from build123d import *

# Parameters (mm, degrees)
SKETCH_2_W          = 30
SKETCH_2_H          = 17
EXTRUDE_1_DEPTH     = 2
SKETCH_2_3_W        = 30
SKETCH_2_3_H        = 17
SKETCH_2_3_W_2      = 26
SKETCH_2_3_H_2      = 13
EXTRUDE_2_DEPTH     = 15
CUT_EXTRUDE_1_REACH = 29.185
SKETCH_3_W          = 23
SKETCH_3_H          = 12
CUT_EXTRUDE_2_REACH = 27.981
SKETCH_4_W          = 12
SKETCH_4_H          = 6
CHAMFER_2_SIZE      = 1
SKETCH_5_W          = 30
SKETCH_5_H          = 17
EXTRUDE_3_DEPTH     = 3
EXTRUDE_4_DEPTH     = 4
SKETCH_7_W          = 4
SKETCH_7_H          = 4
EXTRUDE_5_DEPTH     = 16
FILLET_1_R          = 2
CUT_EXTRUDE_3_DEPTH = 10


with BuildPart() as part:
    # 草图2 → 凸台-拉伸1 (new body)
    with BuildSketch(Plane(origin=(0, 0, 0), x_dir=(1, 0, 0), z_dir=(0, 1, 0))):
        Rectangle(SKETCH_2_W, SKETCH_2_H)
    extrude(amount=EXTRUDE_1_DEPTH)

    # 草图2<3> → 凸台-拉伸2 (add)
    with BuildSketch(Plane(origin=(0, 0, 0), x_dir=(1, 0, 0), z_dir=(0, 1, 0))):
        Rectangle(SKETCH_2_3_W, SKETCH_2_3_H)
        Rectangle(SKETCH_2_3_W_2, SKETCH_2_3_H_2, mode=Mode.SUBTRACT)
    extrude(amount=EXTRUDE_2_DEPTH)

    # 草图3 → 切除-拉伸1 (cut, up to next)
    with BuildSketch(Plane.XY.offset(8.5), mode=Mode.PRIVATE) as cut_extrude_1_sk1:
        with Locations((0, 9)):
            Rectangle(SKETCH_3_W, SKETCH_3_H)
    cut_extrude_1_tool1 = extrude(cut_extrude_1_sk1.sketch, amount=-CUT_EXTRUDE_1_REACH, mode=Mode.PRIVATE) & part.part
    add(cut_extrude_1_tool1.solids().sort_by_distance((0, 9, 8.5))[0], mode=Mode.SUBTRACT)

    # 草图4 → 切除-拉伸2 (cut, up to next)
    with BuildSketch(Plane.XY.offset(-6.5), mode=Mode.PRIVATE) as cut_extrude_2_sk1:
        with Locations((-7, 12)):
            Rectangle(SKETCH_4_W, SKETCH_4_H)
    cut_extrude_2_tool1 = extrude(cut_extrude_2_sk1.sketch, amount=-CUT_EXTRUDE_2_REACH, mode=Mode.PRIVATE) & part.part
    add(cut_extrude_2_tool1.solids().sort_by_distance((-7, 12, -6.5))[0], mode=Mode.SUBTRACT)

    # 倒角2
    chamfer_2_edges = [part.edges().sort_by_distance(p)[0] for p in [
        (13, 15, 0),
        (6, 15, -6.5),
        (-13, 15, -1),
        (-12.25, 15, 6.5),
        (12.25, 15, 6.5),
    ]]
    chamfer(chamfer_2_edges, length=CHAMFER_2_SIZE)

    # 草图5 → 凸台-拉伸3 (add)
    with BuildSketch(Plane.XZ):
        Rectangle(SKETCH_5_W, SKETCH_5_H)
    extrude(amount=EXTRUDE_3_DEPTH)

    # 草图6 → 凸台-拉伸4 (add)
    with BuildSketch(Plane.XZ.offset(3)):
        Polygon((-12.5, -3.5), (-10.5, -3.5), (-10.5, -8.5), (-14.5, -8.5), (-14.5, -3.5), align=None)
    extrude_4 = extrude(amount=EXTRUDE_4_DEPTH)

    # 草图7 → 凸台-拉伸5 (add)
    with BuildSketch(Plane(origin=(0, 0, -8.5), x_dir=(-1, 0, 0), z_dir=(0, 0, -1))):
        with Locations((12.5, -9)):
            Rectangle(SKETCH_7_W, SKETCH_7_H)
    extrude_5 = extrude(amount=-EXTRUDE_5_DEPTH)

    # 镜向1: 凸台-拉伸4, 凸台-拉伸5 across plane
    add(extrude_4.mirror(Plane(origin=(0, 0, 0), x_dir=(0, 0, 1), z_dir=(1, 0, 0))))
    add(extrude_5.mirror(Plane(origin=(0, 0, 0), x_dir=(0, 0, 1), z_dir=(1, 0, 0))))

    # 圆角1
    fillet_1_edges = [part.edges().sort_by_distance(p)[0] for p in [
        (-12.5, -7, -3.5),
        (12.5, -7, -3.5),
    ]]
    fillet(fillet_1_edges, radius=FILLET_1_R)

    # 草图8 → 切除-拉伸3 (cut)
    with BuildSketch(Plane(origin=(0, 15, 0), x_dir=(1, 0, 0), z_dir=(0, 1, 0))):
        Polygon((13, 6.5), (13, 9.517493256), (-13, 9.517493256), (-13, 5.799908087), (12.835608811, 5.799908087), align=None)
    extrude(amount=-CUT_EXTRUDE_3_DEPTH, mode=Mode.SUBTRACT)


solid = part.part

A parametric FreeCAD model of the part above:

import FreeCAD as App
import Part
import Sketcher

V = App.Vector


def edges_at(feature, points):
    """Names of the edges that pass closest to the given points."""
    edges = feature.Shape.Edges
    near = lambda p: min(range(len(edges)), key=lambda i: edges[i].distToShape(Part.Vertex(*p))[0])
    return sorted({f"Edge{near(p) + 1}" for p in points})

doc = App.newDocument("Part")
body = doc.addObject("PartDesign::Body", "Body")

# Sketch on XZ plane
sketch1 = body.newObject("Sketcher::SketchObject", "Sketch")
sketch1.AttachmentSupport = (doc.getObject("XZ_Plane"), [""])
sketch1.MapMode = "FlatFace"
sketch1.addGeometry([
    Part.LineSegment(V(-15, -8, 0), V(-15, 8, 0)),
    Part.LineSegment(V(-15, 8, 0), V(15, 8, 0)),
    Part.LineSegment(V(15, 8, 0), V(15, -8, 0)),
    Part.LineSegment(V(15, -8, 0), V(-15, -8, 0)),
], False)
sketch1.addConstraint([
    Sketcher.Constraint("Coincident", 0, 2, 1, 1),
    Sketcher.Constraint("Coincident", 1, 2, 2, 1),
    Sketcher.Constraint("Coincident", 2, 2, 3, 1),
    Sketcher.Constraint("Coincident", 3, 2, 0, 1),
    Sketcher.Constraint("Vertical", 0),
    Sketcher.Constraint("Horizontal", 1),
    Sketcher.Constraint("Vertical", 2),
    Sketcher.Constraint("Horizontal", 3),
    Sketcher.Constraint("Symmetric", 0, 2, 2, 2, -1, 1),
    Sketcher.Constraint("DistanceX", 1, 1, 1, 2, 30.0),
    Sketcher.Constraint("DistanceY", 0, 1, 0, 2, 17.0),
])
pad1 = body.newObject("PartDesign::Pad", "Pad")
pad1.Profile = sketch1
pad1.Length = 2
pad1.Reversed = True

# Sketch on XZ plane
sketch2 = body.newObject("Sketcher::SketchObject", "Sketch001")
sketch2.AttachmentSupport = (doc.getObject("XZ_Plane"), [""])
sketch2.MapMode = "FlatFace"
sketch2.addGeometry([
    Part.LineSegment(V(-15, -8, 0), V(-15, 8, 0)),  # 0
    Part.LineSegment(V(-15, 8, 0), V(15, 8, 0)),  # 1
    Part.LineSegment(V(15, 8, 0), V(15, -8, 0)),  # 2
    Part.LineSegment(V(15, -8, 0), V(-15, -8, 0)),  # 3
    Part.LineSegment(V(13, 6, 0), V(-13, 6, 0)),  # 4
    Part.LineSegment(V(-13, 6, 0), V(-13, -6, 0)),  # 5
    Part.LineSegment(V(-13, -6, 0), V(13, -6, 0)),  # 6
    Part.LineSegment(V(13, -6, 0), V(13, 6, 0)),  # 7
], False)
sketch2.addConstraint([
    Sketcher.Constraint("Coincident", 0, 2, 1, 1),
    Sketcher.Constraint("Coincident", 1, 2, 2, 1),
    Sketcher.Constraint("Coincident", 2, 2, 3, 1),
    Sketcher.Constraint("Coincident", 3, 2, 0, 1),
    Sketcher.Constraint("Coincident", 4, 2, 5, 1),
    Sketcher.Constraint("Coincident", 5, 2, 6, 1),
    Sketcher.Constraint("Coincident", 6, 2, 7, 1),
    Sketcher.Constraint("Coincident", 7, 2, 4, 1),
    Sketcher.Constraint("Vertical", 0),
    Sketcher.Constraint("Horizontal", 1),
    Sketcher.Constraint("Vertical", 2),
    Sketcher.Constraint("Horizontal", 3),
    Sketcher.Constraint("Horizontal", 4),
    Sketcher.Constraint("Vertical", 5),
    Sketcher.Constraint("Horizontal", 6),
    Sketcher.Constraint("Vertical", 7),
    Sketcher.Constraint("Symmetric", 0, 2, 2, 2, -1, 1),
    Sketcher.Constraint("Symmetric", 4, 2, 6, 2, -1, 1),
    Sketcher.Constraint("DistanceX", 1, 1, 1, 2, 30.0),
    Sketcher.Constraint("DistanceX", 4, 2, 4, 1, 26.0),
    Sketcher.Constraint("DistanceY", 0, 1, 0, 2, 17.0),
    Sketcher.Constraint("DistanceY", 5, 2, 5, 1, 13.0),
])
pad2 = body.newObject("PartDesign::Pad", "Pad001")
pad2.Profile = sketch2
pad2.Length = 15
pad2.Reversed = True

# Sketch on XY plane
sketch3 = body.newObject("Sketcher::SketchObject", "Sketch002")
sketch3.AttachmentSupport = (doc.getObject("XY_Plane"), [""])
sketch3.MapMode = "FlatFace"
sketch3.AttachmentOffset = App.Placement(V(0, 0, 8.5), App.Rotation())
sketch3.addGeometry([
    Part.LineSegment(V(-12, 15, 0), V(-12, 3, 0)),
    Part.LineSegment(V(-12, 3, 0), V(12, 3, 0)),
    Part.LineSegment(V(12, 3, 0), V(12, 15, 0)),
    Part.LineSegment(V(12, 15, 0), V(-12, 15, 0)),
], False)
sketch3.addConstraint([
    Sketcher.Constraint("Coincident", 0, 2, 1, 1),
    Sketcher.Constraint("Coincident", 1, 2, 2, 1),
    Sketcher.Constraint("Coincident", 2, 2, 3, 1),
    Sketcher.Constraint("Coincident", 3, 2, 0, 1),
    Sketcher.Constraint("Vertical", 0),
    Sketcher.Constraint("Horizontal", 1),
    Sketcher.Constraint("Vertical", 2),
    Sketcher.Constraint("Horizontal", 3),
    Sketcher.Constraint("DistanceX", 1, 1, 1, 2, 23.0),
    Sketcher.Constraint("DistanceY", 0, 2, 0, 1, 12.0),
    Sketcher.Constraint("DistanceY", -1, 1, 0, 2, 3.0),
    Sketcher.Constraint("DistanceX", 0, 2, -1, 1, 11.5),
])
pocket1 = body.newObject("PartDesign::Pocket", "Pocket")
pocket1.Profile = sketch3
pocket1.Type = "UpToFirst"

# Sketch on XY plane
sketch4 = body.newObject("Sketcher::SketchObject", "Sketch003")
sketch4.AttachmentSupport = (doc.getObject("XY_Plane"), [""])
sketch4.MapMode = "FlatFace"
sketch4.AttachmentOffset = App.Placement(V(0, 0, -6.5), App.Rotation())
sketch4.addGeometry([
    Part.LineSegment(V(-13, 15, 0), V(-13, 9, 0)),
    Part.LineSegment(V(-13, 9, 0), V(-1, 9, 0)),
    Part.LineSegment(V(-1, 9, 0), V(-1, 15, 0)),
    Part.LineSegment(V(-1, 15, 0), V(-13, 15, 0)),
], False)
sketch4.addConstraint([
    Sketcher.Constraint("Coincident", 0, 2, 1, 1),
    Sketcher.Constraint("Coincident", 1, 2, 2, 1),
    Sketcher.Constraint("Coincident", 2, 2, 3, 1),
    Sketcher.Constraint("Coincident", 3, 2, 0, 1),
    Sketcher.Constraint("Vertical", 0),
    Sketcher.Constraint("Horizontal", 1),
    Sketcher.Constraint("Vertical", 2),
    Sketcher.Constraint("Horizontal", 3),
    Sketcher.Constraint("DistanceX", 1, 1, 1, 2, 12.0),
    Sketcher.Constraint("DistanceY", 0, 2, 0, 1, 6.0),
    Sketcher.Constraint("DistanceX", 0, 2, -1, 1, 13.0),
    Sketcher.Constraint("DistanceY", -1, 1, 0, 2, 9.0),
])
pocket2 = body.newObject("PartDesign::Pocket", "Pocket001")
pocket2.Profile = sketch4
pocket2.Type = "UpToFirst"
doc.recompute()

chamfer = body.newObject("PartDesign::Chamfer", "Chamfer")
chamfer.Base = (pocket2, edges_at(pocket2, [
    (13, 15, 0),
    (6, 15, -6.5),
    (-13, 15, -1),
    (-12.25, 15, 6.5),
    (12.25, 15, 6.5),
]))
chamfer.Size = 1

# Sketch on XZ plane
sketch5 = body.newObject("Sketcher::SketchObject", "Sketch004")
sketch5.AttachmentSupport = (doc.getObject("XZ_Plane"), [""])
sketch5.MapMode = "FlatFace"
sketch5.addGeometry([
    Part.LineSegment(V(-15, 8, 0), V(-15, -8, 0)),
    Part.LineSegment(V(-15, -8, 0), V(15, -8, 0)),
    Part.LineSegment(V(15, -8, 0), V(15, 8, 0)),
    Part.LineSegment(V(15, 8, 0), V(-15, 8, 0)),
], False)
sketch5.addConstraint([
    Sketcher.Constraint("Coincident", 0, 2, 1, 1),
    Sketcher.Constraint("Coincident", 1, 2, 2, 1),
    Sketcher.Constraint("Coincident", 2, 2, 3, 1),
    Sketcher.Constraint("Coincident", 3, 2, 0, 1),
    Sketcher.Constraint("Vertical", 0),
    Sketcher.Constraint("Horizontal", 1),
    Sketcher.Constraint("Vertical", 2),
    Sketcher.Constraint("Horizontal", 3),
    Sketcher.Constraint("Symmetric", 0, 2, 2, 2, -1, 1),
    Sketcher.Constraint("DistanceX", 1, 1, 1, 2, 30.0),
    Sketcher.Constraint("DistanceY", 0, 2, 0, 1, 17.0),
])
pad3 = body.newObject("PartDesign::Pad", "Pad002")
pad3.Profile = sketch5
pad3.Length = 3

# Sketch on XZ plane
sketch6 = body.newObject("Sketcher::SketchObject", "Sketch005")
sketch6.AttachmentSupport = (doc.getObject("XZ_Plane"), [""])
sketch6.MapMode = "FlatFace"
sketch6.AttachmentOffset = App.Placement(V(0, 0, 3), App.Rotation())
sketch6.addGeometry([
    Part.LineSegment(V(-10.5, -3.5, 0), V(-14.5, -3.5, 0)),
    Part.LineSegment(V(-14.5, -3.5, 0), V(-14.5, -8.5, 0)),
    Part.LineSegment(V(-14.5, -8.5, 0), V(-10.5, -8.5, 0)),
    Part.LineSegment(V(-10.5, -8.5, 0), V(-10.5, -3.5, 0)),
], False)
sketch6.addConstraint([
    Sketcher.Constraint("Coincident", 0, 2, 1, 1),
    Sketcher.Constraint("Coincident", 1, 2, 2, 1),
    Sketcher.Constraint("Coincident", 2, 2, 3, 1),
    Sketcher.Constraint("Coincident", 3, 2, 0, 1),
    Sketcher.Constraint("Horizontal", 0),
    Sketcher.Constraint("Vertical", 1),
    Sketcher.Constraint("Horizontal", 2),
    Sketcher.Constraint("Vertical", 3),
    Sketcher.Constraint("DistanceX", 0, 2, 0, 1, 4.0),
    Sketcher.Constraint("DistanceY", 1, 2, 1, 1, 5.0),
    Sketcher.Constraint("DistanceX", 0, 2, -1, 1, 14.5),
    Sketcher.Constraint("DistanceY", 0, 2, -1, 1, 3.5),
])
pad4 = body.newObject("PartDesign::Pad", "Pad003")
pad4.Profile = sketch6
pad4.Length = 4

# Sketch on XY plane
sketch7 = body.newObject("Sketcher::SketchObject", "Sketch006")
sketch7.AttachmentSupport = (doc.getObject("XY_Plane"), [""])
sketch7.MapMode = "FlatFace"
sketch7.AttachmentOffset = App.Placement(V(0, 0, -8.5), App.Rotation())
sketch7.addGeometry([
    Part.LineSegment(V(-10.5, -7, 0), V(-10.5, -11, 0)),
    Part.LineSegment(V(-10.5, -11, 0), V(-14.5, -11, 0)),
    Part.LineSegment(V(-14.5, -11, 0), V(-14.5, -7, 0)),
    Part.LineSegment(V(-14.5, -7, 0), V(-10.5, -7, 0)),
], False)
sketch7.addConstraint([
    Sketcher.Constraint("Coincident", 0, 2, 1, 1),
    Sketcher.Constraint("Coincident", 1, 2, 2, 1),
    Sketcher.Constraint("Coincident", 2, 2, 3, 1),
    Sketcher.Constraint("Coincident", 3, 2, 0, 1),
    Sketcher.Constraint("Vertical", 0),
    Sketcher.Constraint("Horizontal", 1),
    Sketcher.Constraint("Vertical", 2),
    Sketcher.Constraint("Horizontal", 3),
    Sketcher.Constraint("Equal", 3, 0),
    Sketcher.Constraint("DistanceX", 1, 2, 1, 1, 4.0),
    Sketcher.Constraint("DistanceY", 0, 2, -1, 1, 11.0),
    Sketcher.Constraint("DistanceX", 0, 2, -1, 1, 10.5),
])
pad5 = body.newObject("PartDesign::Pad", "Pad004")
pad5.Profile = sketch7
pad5.Length = 16
doc.recompute()

mirrored = body.newObject("PartDesign::Mirrored", "Mirrored")
mirrored.Originals = [pad4, pad5]
mirrored.MirrorPlane = (doc.getObject("YZ_Plane"), [""])
body.Tip = mirrored
doc.recompute()

fillet = body.newObject("PartDesign::Fillet", "Fillet")
fillet.Base = (mirrored, edges_at(mirrored, [(-12.5, -7, -3.5), (12.5, -7, -3.5)]))
fillet.Radius = 2

# Sketch on XZ plane
sketch8 = body.newObject("Sketcher::SketchObject", "Sketch007")
sketch8.AttachmentSupport = (doc.getObject("XZ_Plane"), [""])
sketch8.MapMode = "FlatFace"
sketch8.AttachmentOffset = App.Placement(V(0, 0, -15), App.Rotation())
sketch8.addGeometry([
    Part.LineSegment(V(13, -6.5, 0), V(13, -9.5, 0)),  # 0
    Part.LineSegment(V(13, -9.5, 0), V(-13, -9.5, 0)),  # 1
    Part.LineSegment(V(-13, -9.5, 0), V(-13, -5.8, 0)),  # 2
    Part.LineSegment(V(-13, -5.8, 0), V(12.8, -5.8, 0)),  # 3
    Part.LineSegment(V(12.8, -5.8, 0), V(13, -6.5, 0)),  # 4
], False)
sketch8.addConstraint([
    Sketcher.Constraint("Coincident", 0, 2, 1, 1),
    Sketcher.Constraint("Coincident", 1, 2, 2, 1),
    Sketcher.Constraint("Coincident", 2, 2, 3, 1),
    Sketcher.Constraint("Coincident", 3, 2, 4, 1),
    Sketcher.Constraint("Coincident", 4, 2, 0, 1),
    Sketcher.Constraint("Vertical", 0),
    Sketcher.Constraint("Horizontal", 1),
    Sketcher.Constraint("Vertical", 2),
    Sketcher.Constraint("Horizontal", 3),
    Sketcher.Constraint("DistanceX", 1, 2, 1, 1, 26.0),
    Sketcher.Constraint("DistanceX", -1, 1, 0, 2, 13.0),
    Sketcher.Constraint("DistanceY", 4, 2, -1, 1, 6.5),
    Sketcher.Constraint("DistanceX", 3, 1, 3, 2, 25.835609),
    Sketcher.Constraint("DistanceY", 0, 2, 0, 1, 3.017493),
    Sketcher.Constraint("DistanceY", 2, 1, 2, 2, 3.717585),
])
pocket3 = body.newObject("PartDesign::Pocket", "Pocket002")
pocket3.Profile = sketch8
pocket3.Length = 10
pocket3.Reversed = True

doc.recompute()
